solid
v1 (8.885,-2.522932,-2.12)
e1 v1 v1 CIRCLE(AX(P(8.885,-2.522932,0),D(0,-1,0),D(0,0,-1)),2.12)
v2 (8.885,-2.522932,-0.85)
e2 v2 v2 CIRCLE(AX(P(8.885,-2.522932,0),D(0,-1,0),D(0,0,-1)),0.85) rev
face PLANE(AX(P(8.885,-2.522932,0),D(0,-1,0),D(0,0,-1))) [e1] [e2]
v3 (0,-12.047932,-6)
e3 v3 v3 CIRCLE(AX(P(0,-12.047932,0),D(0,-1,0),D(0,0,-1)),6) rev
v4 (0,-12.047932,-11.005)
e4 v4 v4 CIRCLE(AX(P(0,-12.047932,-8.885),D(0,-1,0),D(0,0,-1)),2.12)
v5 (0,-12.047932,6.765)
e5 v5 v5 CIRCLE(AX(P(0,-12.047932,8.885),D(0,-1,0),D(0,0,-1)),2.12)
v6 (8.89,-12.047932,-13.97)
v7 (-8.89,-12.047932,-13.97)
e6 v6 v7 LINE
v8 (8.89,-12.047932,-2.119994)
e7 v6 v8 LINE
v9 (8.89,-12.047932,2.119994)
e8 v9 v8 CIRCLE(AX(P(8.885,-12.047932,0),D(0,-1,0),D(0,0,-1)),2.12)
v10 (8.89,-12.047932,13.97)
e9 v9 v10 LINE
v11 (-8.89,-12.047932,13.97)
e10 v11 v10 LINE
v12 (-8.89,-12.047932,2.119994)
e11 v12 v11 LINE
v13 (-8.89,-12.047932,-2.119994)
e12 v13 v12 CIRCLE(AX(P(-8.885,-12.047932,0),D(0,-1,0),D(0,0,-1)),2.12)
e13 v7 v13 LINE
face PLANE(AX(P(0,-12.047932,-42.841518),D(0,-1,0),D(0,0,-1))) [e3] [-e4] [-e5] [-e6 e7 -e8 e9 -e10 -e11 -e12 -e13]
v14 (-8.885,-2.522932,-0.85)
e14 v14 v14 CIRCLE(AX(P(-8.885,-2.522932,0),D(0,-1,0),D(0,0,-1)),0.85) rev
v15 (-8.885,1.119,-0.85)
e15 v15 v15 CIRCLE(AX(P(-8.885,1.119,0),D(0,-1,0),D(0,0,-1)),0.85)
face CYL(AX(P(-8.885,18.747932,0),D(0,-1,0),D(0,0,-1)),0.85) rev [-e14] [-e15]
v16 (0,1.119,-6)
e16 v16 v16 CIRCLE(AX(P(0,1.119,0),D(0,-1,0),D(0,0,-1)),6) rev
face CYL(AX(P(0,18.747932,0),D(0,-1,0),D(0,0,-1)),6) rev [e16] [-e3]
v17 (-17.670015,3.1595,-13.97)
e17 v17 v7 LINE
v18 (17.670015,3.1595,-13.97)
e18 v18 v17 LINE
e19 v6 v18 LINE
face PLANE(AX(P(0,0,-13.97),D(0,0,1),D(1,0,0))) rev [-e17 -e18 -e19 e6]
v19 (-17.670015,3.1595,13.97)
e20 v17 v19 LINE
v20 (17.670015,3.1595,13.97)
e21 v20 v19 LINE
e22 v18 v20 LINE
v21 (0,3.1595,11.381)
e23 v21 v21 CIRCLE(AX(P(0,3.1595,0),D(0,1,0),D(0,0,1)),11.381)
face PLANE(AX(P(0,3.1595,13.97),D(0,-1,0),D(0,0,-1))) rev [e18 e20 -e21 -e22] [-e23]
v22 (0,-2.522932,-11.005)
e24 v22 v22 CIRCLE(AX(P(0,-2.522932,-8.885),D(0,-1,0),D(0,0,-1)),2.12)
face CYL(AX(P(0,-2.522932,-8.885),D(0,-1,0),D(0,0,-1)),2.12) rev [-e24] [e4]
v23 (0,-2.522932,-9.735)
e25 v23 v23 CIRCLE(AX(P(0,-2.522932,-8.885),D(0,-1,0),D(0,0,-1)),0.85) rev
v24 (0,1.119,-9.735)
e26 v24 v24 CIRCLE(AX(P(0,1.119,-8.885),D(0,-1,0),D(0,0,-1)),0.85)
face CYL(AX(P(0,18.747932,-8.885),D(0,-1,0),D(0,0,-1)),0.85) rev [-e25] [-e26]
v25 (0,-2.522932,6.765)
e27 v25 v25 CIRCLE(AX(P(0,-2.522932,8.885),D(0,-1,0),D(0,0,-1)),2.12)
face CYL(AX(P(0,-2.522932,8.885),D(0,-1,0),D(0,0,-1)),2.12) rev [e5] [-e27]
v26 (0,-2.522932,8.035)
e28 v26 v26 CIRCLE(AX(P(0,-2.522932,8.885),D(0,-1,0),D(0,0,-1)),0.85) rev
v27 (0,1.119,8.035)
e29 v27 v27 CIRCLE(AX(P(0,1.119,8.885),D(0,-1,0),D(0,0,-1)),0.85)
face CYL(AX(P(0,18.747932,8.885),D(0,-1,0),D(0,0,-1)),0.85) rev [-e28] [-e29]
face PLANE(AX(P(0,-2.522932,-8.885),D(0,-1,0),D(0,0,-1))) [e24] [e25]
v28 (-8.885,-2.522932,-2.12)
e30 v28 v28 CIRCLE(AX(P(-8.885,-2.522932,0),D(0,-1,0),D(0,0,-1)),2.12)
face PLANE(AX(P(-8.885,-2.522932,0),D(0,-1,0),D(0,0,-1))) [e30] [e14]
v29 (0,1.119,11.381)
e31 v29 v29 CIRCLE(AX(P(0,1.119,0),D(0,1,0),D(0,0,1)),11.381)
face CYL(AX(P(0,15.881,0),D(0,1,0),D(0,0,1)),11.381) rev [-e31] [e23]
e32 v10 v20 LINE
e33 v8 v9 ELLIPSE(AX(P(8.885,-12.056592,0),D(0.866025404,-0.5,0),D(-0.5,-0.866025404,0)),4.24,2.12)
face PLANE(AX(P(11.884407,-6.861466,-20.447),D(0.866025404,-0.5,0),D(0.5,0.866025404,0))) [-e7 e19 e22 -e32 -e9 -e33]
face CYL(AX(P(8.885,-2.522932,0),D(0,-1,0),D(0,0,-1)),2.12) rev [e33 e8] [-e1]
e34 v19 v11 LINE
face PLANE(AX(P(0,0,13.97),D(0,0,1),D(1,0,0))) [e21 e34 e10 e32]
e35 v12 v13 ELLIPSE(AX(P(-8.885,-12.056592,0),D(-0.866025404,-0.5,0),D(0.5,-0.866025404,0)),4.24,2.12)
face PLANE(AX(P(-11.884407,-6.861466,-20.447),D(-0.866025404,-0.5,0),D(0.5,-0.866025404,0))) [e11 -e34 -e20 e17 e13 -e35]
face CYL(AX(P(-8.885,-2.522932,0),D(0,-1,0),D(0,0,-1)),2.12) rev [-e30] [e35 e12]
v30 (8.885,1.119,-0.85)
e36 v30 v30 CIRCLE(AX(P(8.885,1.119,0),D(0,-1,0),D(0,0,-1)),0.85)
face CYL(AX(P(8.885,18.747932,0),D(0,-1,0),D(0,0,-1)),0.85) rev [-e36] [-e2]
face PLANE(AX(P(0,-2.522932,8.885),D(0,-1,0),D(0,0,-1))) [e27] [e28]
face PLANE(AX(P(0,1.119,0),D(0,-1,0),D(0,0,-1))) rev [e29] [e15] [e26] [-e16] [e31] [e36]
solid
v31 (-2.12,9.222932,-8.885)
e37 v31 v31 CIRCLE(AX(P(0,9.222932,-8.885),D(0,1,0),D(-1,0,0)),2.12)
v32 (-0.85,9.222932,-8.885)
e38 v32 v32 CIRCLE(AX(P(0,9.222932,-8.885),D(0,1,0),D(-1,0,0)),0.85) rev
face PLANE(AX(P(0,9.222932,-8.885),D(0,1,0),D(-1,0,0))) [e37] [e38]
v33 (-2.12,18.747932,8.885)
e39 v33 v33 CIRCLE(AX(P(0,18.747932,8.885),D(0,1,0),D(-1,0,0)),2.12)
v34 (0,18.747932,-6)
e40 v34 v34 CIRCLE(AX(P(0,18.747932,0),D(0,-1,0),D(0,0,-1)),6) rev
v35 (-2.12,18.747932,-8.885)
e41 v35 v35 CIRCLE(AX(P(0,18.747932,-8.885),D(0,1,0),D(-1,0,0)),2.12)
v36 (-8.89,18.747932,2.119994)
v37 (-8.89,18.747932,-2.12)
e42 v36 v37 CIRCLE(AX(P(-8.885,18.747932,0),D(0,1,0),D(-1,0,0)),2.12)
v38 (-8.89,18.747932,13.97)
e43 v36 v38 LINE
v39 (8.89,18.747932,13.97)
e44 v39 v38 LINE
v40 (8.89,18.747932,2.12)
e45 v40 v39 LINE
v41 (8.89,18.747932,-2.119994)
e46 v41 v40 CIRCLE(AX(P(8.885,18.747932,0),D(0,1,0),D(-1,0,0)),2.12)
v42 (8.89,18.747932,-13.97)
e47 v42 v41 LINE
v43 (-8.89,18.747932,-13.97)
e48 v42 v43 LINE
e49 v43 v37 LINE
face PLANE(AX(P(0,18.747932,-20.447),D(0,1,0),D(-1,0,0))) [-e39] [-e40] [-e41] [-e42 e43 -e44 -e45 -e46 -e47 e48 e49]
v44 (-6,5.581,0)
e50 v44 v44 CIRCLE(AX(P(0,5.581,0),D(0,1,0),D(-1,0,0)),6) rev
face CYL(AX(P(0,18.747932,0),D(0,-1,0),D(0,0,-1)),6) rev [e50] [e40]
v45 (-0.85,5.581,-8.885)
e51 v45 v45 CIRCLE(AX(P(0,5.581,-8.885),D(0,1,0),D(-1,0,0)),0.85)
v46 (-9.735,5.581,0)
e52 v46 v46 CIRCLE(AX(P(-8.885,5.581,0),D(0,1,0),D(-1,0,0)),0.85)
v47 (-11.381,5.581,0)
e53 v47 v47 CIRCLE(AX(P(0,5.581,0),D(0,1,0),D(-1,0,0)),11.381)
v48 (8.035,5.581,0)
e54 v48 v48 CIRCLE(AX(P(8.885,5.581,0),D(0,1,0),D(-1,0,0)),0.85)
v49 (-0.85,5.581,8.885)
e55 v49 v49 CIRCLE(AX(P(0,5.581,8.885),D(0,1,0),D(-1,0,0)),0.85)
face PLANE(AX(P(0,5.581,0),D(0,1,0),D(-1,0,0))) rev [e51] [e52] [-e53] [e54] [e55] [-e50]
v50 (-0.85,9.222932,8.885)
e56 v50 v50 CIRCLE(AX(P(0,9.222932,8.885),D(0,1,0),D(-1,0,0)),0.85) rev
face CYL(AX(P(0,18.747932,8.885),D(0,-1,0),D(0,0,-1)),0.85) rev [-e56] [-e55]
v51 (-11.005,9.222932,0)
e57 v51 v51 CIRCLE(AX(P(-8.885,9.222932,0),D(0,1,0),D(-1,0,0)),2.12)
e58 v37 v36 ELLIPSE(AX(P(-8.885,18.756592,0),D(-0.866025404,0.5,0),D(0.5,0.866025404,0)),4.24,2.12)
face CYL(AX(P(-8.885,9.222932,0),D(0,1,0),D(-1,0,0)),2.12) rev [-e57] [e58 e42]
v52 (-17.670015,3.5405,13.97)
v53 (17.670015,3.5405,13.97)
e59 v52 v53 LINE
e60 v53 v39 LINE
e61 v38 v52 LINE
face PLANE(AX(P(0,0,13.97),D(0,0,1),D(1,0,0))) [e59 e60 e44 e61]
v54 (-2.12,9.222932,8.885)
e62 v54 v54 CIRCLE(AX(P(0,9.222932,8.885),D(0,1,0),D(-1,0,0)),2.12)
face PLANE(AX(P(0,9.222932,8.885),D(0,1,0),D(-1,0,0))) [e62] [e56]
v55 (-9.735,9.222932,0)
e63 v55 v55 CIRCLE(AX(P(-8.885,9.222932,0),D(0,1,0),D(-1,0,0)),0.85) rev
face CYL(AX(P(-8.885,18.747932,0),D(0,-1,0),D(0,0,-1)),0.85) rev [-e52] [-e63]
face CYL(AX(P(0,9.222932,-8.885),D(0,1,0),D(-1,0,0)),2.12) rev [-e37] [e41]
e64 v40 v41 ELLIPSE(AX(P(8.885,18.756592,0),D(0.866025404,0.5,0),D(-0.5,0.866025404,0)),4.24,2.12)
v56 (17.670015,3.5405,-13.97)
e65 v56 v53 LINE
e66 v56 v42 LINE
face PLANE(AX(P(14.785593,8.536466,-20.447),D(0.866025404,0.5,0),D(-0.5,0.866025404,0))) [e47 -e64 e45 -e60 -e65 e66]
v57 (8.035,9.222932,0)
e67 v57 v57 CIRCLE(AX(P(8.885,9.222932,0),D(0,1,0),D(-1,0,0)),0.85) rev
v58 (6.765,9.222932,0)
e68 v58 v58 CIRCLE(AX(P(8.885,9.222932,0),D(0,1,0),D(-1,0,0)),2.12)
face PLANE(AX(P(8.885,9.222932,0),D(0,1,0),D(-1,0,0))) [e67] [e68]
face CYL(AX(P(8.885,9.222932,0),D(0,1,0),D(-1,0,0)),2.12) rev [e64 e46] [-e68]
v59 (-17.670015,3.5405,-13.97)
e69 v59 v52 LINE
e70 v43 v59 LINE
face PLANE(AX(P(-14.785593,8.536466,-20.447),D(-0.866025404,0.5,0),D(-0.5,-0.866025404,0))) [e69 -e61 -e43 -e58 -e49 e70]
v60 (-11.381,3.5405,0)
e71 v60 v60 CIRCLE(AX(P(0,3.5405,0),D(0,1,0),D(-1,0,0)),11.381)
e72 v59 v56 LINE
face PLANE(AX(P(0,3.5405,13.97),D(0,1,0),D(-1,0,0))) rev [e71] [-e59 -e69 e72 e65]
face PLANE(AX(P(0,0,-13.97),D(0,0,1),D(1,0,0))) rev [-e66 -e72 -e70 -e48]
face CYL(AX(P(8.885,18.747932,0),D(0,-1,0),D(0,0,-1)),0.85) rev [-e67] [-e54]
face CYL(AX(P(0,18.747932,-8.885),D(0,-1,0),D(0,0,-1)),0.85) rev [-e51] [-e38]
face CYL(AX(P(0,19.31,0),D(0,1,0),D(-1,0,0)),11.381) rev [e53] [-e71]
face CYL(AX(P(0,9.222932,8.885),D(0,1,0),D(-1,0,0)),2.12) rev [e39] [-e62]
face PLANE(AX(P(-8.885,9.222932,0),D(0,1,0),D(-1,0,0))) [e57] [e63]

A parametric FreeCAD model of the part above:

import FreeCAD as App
import Part
import Sketcher
from FreeCAD import Vector
Q = App.Units.Quantity


def add_polygon(sketch, points):
    """Adds a closed chain of lines whose ends are joined by coincident constraints."""
    first, n = sketch.GeometryCount, len(points)
    for a, b in zip(points, points[1:] + points[:1]):
        sketch.addGeometry(Part.LineSegment(App.Vector(*a, 0), App.Vector(*b, 0)), False)
    for i in range(n):
        sketch.addConstraint(Sketcher.Constraint("Coincident", first + i, 2, first + (i + 1) % n, 1))

doc = App.newDocument("Part")
body = doc.addObject("PartDesign::Body", "Body")

sketch1 = body.newObject("Sketcher::SketchObject", "Sketch")
sketch1.AttachmentSupport = (doc.getObject("XY_Plane"), [""])
sketch1.MapMode = "FlatFace"
add_polygon(sketch1, [(-13.97, 19.31), (-13.97, 3.5405), (13.97, 3.5405), (13.97, 19.31)])
sketch1.addConstraint(Sketcher.Constraint("Vertical", 0))
sketch1.addConstraint(Sketcher.Constraint("Horizontal", 1))
sketch1.addConstraint(Sketcher.Constraint("Vertical", 2))
sketch1.addConstraint(Sketcher.Constraint("Horizontal", 3))
sketch1.addConstraint(Sketcher.Constraint("DistanceX", 1, 1, 1, 2, Q("27.94 mm")))
sketch1.addConstraint(Sketcher.Constraint("DistanceX", 0, 2, -1, 1, Q("13.97 mm")))
sketch1.addConstraint(Sketcher.Constraint("DistanceY", -1, 1, 2, 2, Q("19.31 mm")))
sketch1.addConstraint(Sketcher.Constraint("DistanceY", 0, 2, 0, 1, Q("15.7695 mm")))
pad1 = body.newObject("PartDesign::Pad", "Pad")
pad1.Profile = sketch1
pad1.Length = 27.94
pad1.Midplane = True

sketch2 = body.newObject("Sketcher::SketchObject", "Sketch001")
sketch2.AttachmentSupport = (doc.getObject("XY_Plane"), [""])
sketch2.MapMode = "FlatFace"
add_polygon(sketch2, [(5.451, 15.881), (0, 15.881), (0, 3.5405), (11.381, 3.5405), (11.381, 5.581), (5.451, 5.581)])
sketch2.addConstraint(Sketcher.Constraint("Horizontal", 0))
sketch2.addConstraint(Sketcher.Constraint("Vertical", 1))
sketch2.addConstraint(Sketcher.Constraint("Horizontal", 2))
sketch2.addConstraint(Sketcher.Constraint("Vertical", 3))
sketch2.addConstraint(Sketcher.Constraint("Horizontal", 4))
sketch2.addConstraint(Sketcher.Constraint("Vertical", 5))
sketch2.addConstraint(Sketcher.Constraint("PointOnObject", 0, 2, -2))
sketch2.addConstraint(Sketcher.Constraint("DistanceY", 5, 1, 5, 2, Q("10.3 mm")))
sketch2.addConstraint(Sketcher.Constraint("DistanceX", 4, 2, 4, 1, Q("5.93 mm")))
sketch2.addConstraint(Sketcher.Constraint("DistanceX", 0, 2, 0, 1, Q("5.451 mm")))
sketch2.addConstraint(Sketcher.Constraint("DistanceY", 1, 2, 1, 1, Q("12.3405 mm")))
sketch2.addConstraint(Sketcher.Constraint("DistanceY", -1, 1, 0, 2, Q("15.881 mm")))
groove = body.newObject("PartDesign::Groove", "Groove")
groove.Profile = sketch2
groove.ReferenceAxis = (sketch2, ["V_Axis"])
groove.Angle = 360
body2 = doc.addObject("PartDesign::Body", "Body001")

sketch3 = body2.newObject("Sketcher::SketchObject", "Sketch002")
sketch3.AttachmentSupport = (doc.getObject("XY_Plane001"), [""])
sketch3.MapMode = "FlatFace"
add_polygon(sketch3, [(-13.97, 3.1595), (-13.97, -3.55), (13.97, -3.55), (13.97, 3.1595)])
sketch3.addConstraint(Sketcher.Constraint("Vertical", 0))
sketch3.addConstraint(Sketcher.Constraint("Horizontal", 1))
sketch3.addConstraint(Sketcher.Constraint("Vertical", 2))
sketch3.addConstraint(Sketcher.Constraint("Horizontal", 3))
sketch3.addConstraint(Sketcher.Constraint("DistanceX", 1, 1, 1, 2, Q("27.94 mm")))
sketch3.addConstraint(Sketcher.Constraint("DistanceX", 0, 2, -1, 1, Q("13.97 mm")))
sketch3.addConstraint(Sketcher.Constraint("DistanceY", 0, 2, -1, 1, Q("3.55 mm")))
sketch3.addConstraint(Sketcher.Constraint("DistanceY", 0, 2, 0, 1, Q("6.7095 mm")))
pad2 = body2.newObject("PartDesign::Pad", "Pad001")
pad2.Profile = sketch3
pad2.Length = 27.94
pad2.Midplane = True
body3 = doc.addObject("PartDesign::Body", "Body002")

sketch4 = body3.newObject("Sketcher::SketchObject", "Sketch003")
sketch4.AttachmentSupport = (doc.getObject("XY_Plane002"), [""])
sketch4.MapMode = "FlatFace"
sketch4.AttachmentOffset = App.Placement(Vector(0, 0, 13.97), App.Rotation())
sketch4.addGeometry(Part.Circle(Vector(0, 3.35, 0), Vector(0, 0, 1), 23.39819), False)
add_polygon(sketch4, [(-17.78, 3.35), (-8.89, 18.747932), (8.89, 18.747932), (17.78, 3.35), (8.89, -12.047932), (-8.89, -12.047932)])
sketch4.addConstraint(Sketcher.Constraint("Horizontal", 2))
sketch4.addConstraint(Sketcher.Constraint("Horizontal", 5))
sketch4.addConstraint(Sketcher.Constraint("Symmetric", 3, 2, 6, 2, -2))
sketch4.addConstraint(Sketcher.Constraint("PointOnObject", 0, 3, -2))
sketch4.addConstraint(Sketcher.Constraint("Parallel", 1, 4))
sketch4.addConstraint(Sketcher.Constraint("Parallel", 3, 6))
sketch4.addConstraint(Sketcher.Constraint("Horizontal", 0, 3, 3, 2))
sketch4.addConstraint(Sketcher.Constraint("Vertical", 2, 2, 4, 2))
sketch4.addConstraint(Sketcher.Constraint("Vertical", 1, 2, 5, 2))
sketch4.addConstraint(Sketcher.Constraint("Angle", 1, Q("60 deg")))
sketch4.addConstraint(Sketcher.Constraint("DistanceX", 2, 1, 2, 2, Q("17.78 mm")))
sketch4.addConstraint(Sketcher.Constraint("Distance", 1, Q("17.78 mm")))
sketch4.addConstraint(Sketcher.Constraint("Diameter", 0, Q("46.79638 mm")))
sketch4.addConstraint(Sketcher.Constraint("DistanceY", -1, 1, 0, 3, Q("3.35 mm")))
pad3 = body3.newObject("PartDesign::Pad", "Pad002")
pad3.Profile = sketch4
pad3.Length = 34.417
pad3.Reversed = True
doc.recompute()

body4 = doc.addObject("PartDesign::Body", "Body003")
body4.BaseFeature = body3
boolean = body.newObject("PartDesign::Boolean", "Boolean")
boolean.Type = "Cut"
boolean.addObjects([body4])
doc.recompute()

boolean2 = body2.newObject("PartDesign::Boolean", "Boolean001")
boolean2.Type = "Cut"
boolean2.addObjects([body3])

sketch5 = body2.newObject("Sketcher::SketchObject", "Sketch004")
sketch5.AttachmentSupport = (doc.getObject("XY_Plane001"), [""])
sketch5.MapMode = "FlatFace"
add_polygon(sketch5, [(11.381, 3.1595), (0, 3.1595), (0, -0.381), (5.451, -0.381), (5.451, 1.119), (11.381, 1.119)])
sketch5.addConstraint(Sketcher.Constraint("Horizontal", 0))
sketch5.addConstraint(Sketcher.Constraint("Vertical", 1))
sketch5.addConstraint(Sketcher.Constraint("Horizontal", 2))
sketch5.addConstraint(Sketcher.Constraint("Vertical", 3))
sketch5.addConstraint(Sketcher.Constraint("Horizontal", 4))
sketch5.addConstraint(Sketcher.Constraint("Vertical", 5))
sketch5.addConstraint(Sketcher.Constraint("PointOnObject", 0, 2, -2))
sketch5.addConstraint(Sketcher.Constraint("DistanceY", 3, 1, 3, 2, Q("1.5 mm")))
sketch5.addConstraint(Sketcher.Constraint("DistanceX", 4, 1, 4, 2, Q("5.93 mm")))
sketch5.addConstraint(Sketcher.Constraint("DistanceX", 0, 2, 0, 1, Q("11.381 mm")))
sketch5.addConstraint(Sketcher.Constraint("DistanceY", 1, 2, 1, 1, Q("3.5405 mm")))
sketch5.addConstraint(Sketcher.Constraint("DistanceY", 1, 2, -1, 1, Q("0.381 mm")))
groove2 = body2.newObject("PartDesign::Groove", "Groove001")
groove2.Profile = sketch5
groove2.ReferenceAxis = (sketch5, ["V_Axis"])
groove2.Angle = 360
body.AllowCompound = True
doc.recompute()

boolean3 = body.newObject("PartDesign::Boolean", "Boolean002")
boolean3.Type = "Fuse"
boolean3.addObjects([body2])

sketch6 = body.newObject("Sketcher::SketchObject", "Sketch005")
sketch6.AttachmentSupport = (doc.getObject("XY_Plane"), [""])
sketch6.MapMode = "FlatFace"
sketch6.AttachmentOffset = App.Placement(Vector(0, 0, 13.97), App.Rotation())
add_polygon(sketch6, [(13.97, -3.249114), (17.670015, 3.1595), (13.97, 3.1595)])
add_polygon(sketch6, [(17.670015, 3.5405), (13.97, 9.949114), (13.97, 3.5405)])
add_polygon(sketch6, [(13.796283, -3.55), (-13.796283, -3.55), (-8.89, -12.047932), (8.89, -12.047932)])
add_polygon(sketch6, [(-13.97, 3.1595), (-17.670015, 3.1595), (-13.97, -3.249114)])
add_polygon(sketch6, [(-13.97, 3.5405), (-13.97, 9.949114), (-17.670015, 3.5405)])
sketch6.addConstraint(Sketcher.Constraint("Horizontal", 1))
sketch6.addConstraint(Sketcher.Constraint("Vertical", 2))
sketch6.addConstraint(Sketcher.Constraint("Vertical", 4))
sketch6.addConstraint(Sketcher.Constraint("Horizontal", 5))
sketch6.addConstraint(Sketcher.Constraint("Horizontal", 6))
sketch6.addConstraint(Sketcher.Constraint("Horizontal", 8))
sketch6.addConstraint(Sketcher.Constraint("Horizontal", 10))
sketch6.addConstraint(Sketcher.Constraint("Vertical", 12))
sketch6.addConstraint(Sketcher.Constraint("Vertical", 13))
sketch6.addConstraint(Sketcher.Constraint("Horizontal", 15))
sketch6.addConstraint(Sketcher.Constraint("Symmetric", 0, 2, 10, 2, -2))
sketch6.addConstraint(Sketcher.Constraint("Symmetric", 2, 2, 11, 2, -2))
sketch6.addConstraint(Sketcher.Constraint("Symmetric", 3, 2, 13, 2, -2))
sketch6.addConstraint(Sketcher.Constraint("Symmetric", 5, 2, 14, 2, -2))
sketch6.addConstraint(Sketcher.Constraint("Parallel", 3, 7))
sketch6.addConstraint(Sketcher.Constraint("Parallel", 0, 9))
sketch6.addConstraint(Sketcher.Constraint("Parallel", 7, 11))
sketch6.addConstraint(Sketcher.Constraint("Vertical", 2, 2, 3, 2))
sketch6.addConstraint(Sketcher.Constraint("Vertical", 0, 2, 5, 2))
sketch6.addConstraint(Sketcher.Constraint("Angle", 0, Q("60 deg")))
sketch6.addConstraint(Sketcher.Constraint("DistanceX", 8, 1, 8, 2, Q("17.78 mm")))
sketch6.addConstraint(Sketcher.Constraint("DistanceX", -1, 1, 1, 2, Q("13.97 mm")))
sketch6.addConstraint(Sketcher.Constraint("DistanceY", 6, 2, -1, 1, Q("3.55 mm")))
sketch6.addConstraint(Sketcher.Constraint("DistanceX", 7, 2, -1, 1, Q("8.89 mm")))
sketch6.addConstraint(Sketcher.Constraint("DistanceY", 1, 2, 4, 2, Q("0.381 mm")))
sketch6.addConstraint(Sketcher.Constraint("DistanceY", -1, 1, 0, 2, Q("3.1595 mm")))
sketch6.addConstraint(Sketcher.Constraint("Distance", 0, Q("7.40003 mm")))
sketch6.addConstraint(Sketcher.Constraint("DistanceX", 6, 2, 6, 1, Q("27.592566 mm")))
pad4 = body.newObject("PartDesign::Pad", "Pad003")
pad4.Profile = sketch6
pad4.Length = 27.94
pad4.Reversed = True

sketch7 = body.newObject("Sketcher::SketchObject", "Sketch006")
sketch7.AttachmentSupport = (doc.getObject("XZ_Plane"), [""])
sketch7.MapMode = "FlatFace"
sketch7.AttachmentOffset = App.Placement(Vector(0, 0, 12.047932), App.Rotation())
sketch7.addGeometry(Part.Circle(Vector(0, 0, 0), Vector(0, 0, 1), 6), False)
sketch7.addConstraint(Sketcher.Constraint("Coincident", 0, 3, -1, 1))
sketch7.addConstraint(Sketcher.Constraint("Diameter", 0, Q("12 mm")))
pocket1 = body.newObject("PartDesign::Pocket", "Pocket")
pocket1.Profile = sketch7
pocket1.Type = "ThroughAll"

sketch8 = body.newObject("Sketcher::SketchObject", "Sketch007")
sketch8.AttachmentSupport = (doc.getObject("XZ_Plane"), [""])
sketch8.MapMode = "FlatFace"
sketch8.AttachmentOffset = App.Placement(Vector(0, 0, 12.047932), App.Rotation())
sketch8.addGeometry(Part.Circle(Vector(-8.885, 0, 0), Vector(0, 0, 1), 0.85), False)
sketch8.addGeometry(Part.Circle(Vector(0, 8.885, 0), Vector(0, 0, 1), 0.85), False)
sketch8.addGeometry(Part.Circle(Vector(8.885, 0, 0), Vector(0, 0, 1), 0.85), False)
sketch8.addGeometry(Part.Circle(Vector(0, -8.885, 0), Vector(0, 0, 1), 0.85), False)
sketch8.addConstraint(Sketcher.Constraint("Equal", 0, 1))
sketch8.addConstraint(Sketcher.Constraint("Equal", 1, 2))
sketch8.addConstraint(Sketcher.Constraint("Equal", 2, 3))
sketch8.addConstraint(Sketcher.Constraint("Symmetric", 0, 3, 2, 3, -1, 1))
sketch8.addConstraint(Sketcher.Constraint("Symmetric", 1, 3, 3, 3, -1, 1))
sketch8.addConstraint(Sketcher.Constraint("PointOnObject", 0, 3, -1))
sketch8.addConstraint(Sketcher.Constraint("PointOnObject", 1, 3, -2))
sketch8.addConstraint(Sketcher.Constraint("Diameter", 0, Q("1.7 mm")))
sketch8.addConstraint(Sketcher.Constraint("DistanceX", 0, 3, 2, 3, Q("17.77 mm")))
sketch8.addConstraint(Sketcher.Constraint("DistanceY", 3, 3, 1, 3, Q("17.77 mm")))
pocket2 = body.newObject("PartDesign::Pocket", "Pocket001")
pocket2.Profile = sketch8
pocket2.Type = "ThroughAll"
pocket2.Midplane = True

sketch9 = body.newObject("Sketcher::SketchObject", "Sketch008")
sketch9.AttachmentSupport = (doc.getObject("XZ_Plane"), [""])
sketch9.MapMode = "FlatFace"
sketch9.AttachmentOffset = App.Placement(Vector(0, 0, 12.047932), App.Rotation())
sketch9.addGeometry(Part.Circle(Vector(-8.885, 0, 0), Vector(0, 0, 1), 2.12), False)
sketch9.addGeometry(Part.Circle(Vector(0, 8.885, 0), Vector(0, 0, 1), 2.12), False)
sketch9.addGeometry(Part.Circle(Vector(8.885, 0, 0), Vector(0, 0, 1), 2.12), False)
sketch9.addGeometry(Part.Circle(Vector(0, -8.885, 0), Vector(0, 0, 1), 2.12), False)
sketch9.addConstraint(Sketcher.Constraint("Equal", 0, 1))
sketch9.addConstraint(Sketcher.Constraint("Equal", 1, 2))
sketch9.addConstraint(Sketcher.Constraint("Equal", 2, 3))
sketch9.addConstraint(Sketcher.Constraint("Symmetric", 0, 3, 2, 3, -1, 1))
sketch9.addConstraint(Sketcher.Constraint("Symmetric", 1, 3, 3, 3, -1, 1))
sketch9.addConstraint(Sketcher.Constraint("PointOnObject", 0, 3, -1))
sketch9.addConstraint(Sketcher.Constraint("PointOnObject", 1, 3, -2))
sketch9.addConstraint(Sketcher.Constraint("Diameter", 0, Q("4.24 mm")))
sketch9.addConstraint(Sketcher.Constraint("DistanceX", 0, 3, 2, 3, Q("17.77 mm")))
sketch9.addConstraint(Sketcher.Constraint("DistanceY", 3, 3, 1, 3, Q("17.77 mm")))
pocket3 = body.newObject("PartDesign::Pocket", "Pocket002")
pocket3.Profile = sketch9
pocket3.Length = 9.525

sketch10 = body.newObject("Sketcher::SketchObject", "Sketch009")
sketch10.AttachmentSupport = (doc.getObject("XZ_Plane"), [""])
sketch10.MapMode = "FlatFace"
sketch10.AttachmentOffset = App.Placement(Vector(0, 0, -18.747932), App.Rotation())
sketch10.addGeometry(Part.Circle(Vector(0, -8.885, 0), Vector(0, 0, 1), 2.12), False)
sketch10.addGeometry(Part.Circle(Vector(-8.885, 0, 0), Vector(0, 0, 1), 2.12), False)
sketch10.addGeometry(Part.Circle(Vector(8.885, 0, 0), Vector(0, 0, 1), 2.12), False)
sketch10.addGeometry(Part.Circle(Vector(0, 8.885, 0), Vector(0, 0, 1), 2.12), False)
sketch10.addConstraint(Sketcher.Constraint("Equal", 0, 1))
sketch10.addConstraint(Sketcher.Constraint("Equal", 1, 2))
sketch10.addConstraint(Sketcher.Constraint("Equal", 2, 3))
sketch10.addConstraint(Sketcher.Constraint("Symmetric", 1, 3, 2, 3, -1, 1))
sketch10.addConstraint(Sketcher.Constraint("Symmetric", 0, 3, 3, 3, -1, 1))
sketch10.addConstraint(Sketcher.Constraint("PointOnObject", 0, 3, -2))
sketch10.addConstraint(Sketcher.Constraint("PointOnObject", 1, 3, -1))
sketch10.addConstraint(Sketcher.Constraint("Diameter", 0, Q("4.24 mm")))
sketch10.addConstraint(Sketcher.Constraint("DistanceX", 1, 3, 2, 3, Q("17.77 mm")))
sketch10.addConstraint(Sketcher.Constraint("DistanceY", 0, 3, 3, 3, Q("17.77 mm")))
pocket4 = body.newObject("PartDesign::Pocket", "Pocket003")
pocket4.Profile = sketch10
pocket4.Length = 9.525
pocket4.Reversed = True

doc.recompute()
